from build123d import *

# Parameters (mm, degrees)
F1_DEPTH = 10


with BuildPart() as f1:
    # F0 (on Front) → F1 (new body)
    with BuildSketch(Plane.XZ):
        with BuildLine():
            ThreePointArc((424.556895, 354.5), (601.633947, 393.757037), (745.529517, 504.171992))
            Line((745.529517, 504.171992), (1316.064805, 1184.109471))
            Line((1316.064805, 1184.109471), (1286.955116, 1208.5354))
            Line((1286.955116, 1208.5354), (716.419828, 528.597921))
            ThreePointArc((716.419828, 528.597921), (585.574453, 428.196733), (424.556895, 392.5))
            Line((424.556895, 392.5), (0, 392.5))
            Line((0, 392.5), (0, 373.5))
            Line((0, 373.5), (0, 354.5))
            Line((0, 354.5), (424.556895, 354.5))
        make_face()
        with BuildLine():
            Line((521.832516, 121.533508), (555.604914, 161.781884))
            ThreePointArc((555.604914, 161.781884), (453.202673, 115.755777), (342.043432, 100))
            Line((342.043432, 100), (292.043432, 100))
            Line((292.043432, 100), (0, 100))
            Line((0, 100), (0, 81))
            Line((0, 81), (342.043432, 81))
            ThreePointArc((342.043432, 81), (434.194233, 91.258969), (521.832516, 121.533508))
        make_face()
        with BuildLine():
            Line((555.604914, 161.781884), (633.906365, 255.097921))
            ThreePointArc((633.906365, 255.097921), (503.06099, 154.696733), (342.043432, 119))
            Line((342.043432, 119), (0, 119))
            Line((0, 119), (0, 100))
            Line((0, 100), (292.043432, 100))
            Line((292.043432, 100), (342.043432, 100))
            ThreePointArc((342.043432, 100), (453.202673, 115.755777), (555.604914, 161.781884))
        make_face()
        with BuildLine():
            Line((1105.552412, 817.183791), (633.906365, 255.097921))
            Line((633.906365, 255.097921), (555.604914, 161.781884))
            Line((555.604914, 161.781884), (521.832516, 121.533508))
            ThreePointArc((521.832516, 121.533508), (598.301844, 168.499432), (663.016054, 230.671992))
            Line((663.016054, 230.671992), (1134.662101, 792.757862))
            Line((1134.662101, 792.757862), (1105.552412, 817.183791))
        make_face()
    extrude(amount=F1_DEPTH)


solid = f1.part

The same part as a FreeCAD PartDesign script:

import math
import FreeCAD as App
import Part
import Sketcher
Q = App.Units.Quantity

doc = App.newDocument("Part")
params = doc.addObject("Spreadsheet::Sheet", "Params")
for row, (alias, value) in enumerate([
    ("sketch1_height", "38 mm"),
    ("pad1_length", "10 mm"),
], start=1):
    params.set(f"A{row}", alias)
    params.set(f"B{row}", "=" + value)
    params.setAlias(f"B{row}", alias)

body = doc.addObject("PartDesign::Body", "Body")
body.AllowCompound = True

sketch1 = body.newObject("Sketcher::SketchObject", "Sketch")
sketch1.AttachmentSupport = (doc.getObject("XZ_Plane"), [""])
sketch1.MapMode = "FlatFace"
sketch1.addGeometry([
    Part.ArcOfCircle(Part.Circle(App.Vector(425, 773, 0), App.Vector(0, 0, 1), 419), math.radians(-90), math.radians(-40)),
    Part.LineSegment(App.Vector(746, 504, 0), App.Vector(1316, 1184, 0)),
    Part.LineSegment(App.Vector(1316, 1184, 0), App.Vector(1287, 1209, 0)),
    Part.LineSegment(App.Vector(1287, 1209, 0), App.Vector(716, 529, 0)),
    Part.ArcOfCircle(Part.Circle(App.Vector(425, 773, 0), App.Vector(0, 0, 1), 381), math.radians(-90), math.radians(-40)),
    Part.LineSegment(App.Vector(425, 392, 0), App.Vector(0, 392, 0)),
    Part.LineSegment(App.Vector(0, 392, 0), App.Vector(0, 354, 0)),
    Part.LineSegment(App.Vector(0, 354, 0), App.Vector(425, 354, 0)),
    Part.ArcOfCircle(Part.Circle(App.Vector(342, 500, 0), App.Vector(0, 0, 1), 381), math.radians(-90), math.radians(-40)),
    Part.LineSegment(App.Vector(342, 119, 0), App.Vector(0, 119, 0)),
    Part.LineSegment(App.Vector(0, 119, 0), App.Vector(0, 81, 0)),
    Part.LineSegment(App.Vector(0, 81, 0), App.Vector(342, 81, 0)),
    Part.ArcOfCircle(Part.Circle(App.Vector(342, 500, 0), App.Vector(0, 0, 1), 419), math.radians(-90), math.radians(-65)),
    Part.ArcOfCircle(Part.Circle(App.Vector(342, 500, 0), App.Vector(0, 0, 1), 419), math.radians(-65), math.radians(-40)),
    Part.LineSegment(App.Vector(663, 231, 0), App.Vector(1135, 793, 0)),
    Part.LineSegment(App.Vector(1135, 793, 0), App.Vector(1106, 817, 0)),
    Part.LineSegment(App.Vector(1106, 817, 0), App.Vector(634, 255, 0)),
], False)
sketch1.addConstraint([
    Sketcher.Constraint("Tangent", 0, 2, 1, 1),
    Sketcher.Constraint("Coincident", 1, 2, 2, 1),
    Sketcher.Constraint("Coincident", 2, 2, 3, 1),
    Sketcher.Constraint("Tangent", 3, 2, 4, 2),
    Sketcher.Constraint("Tangent", 4, 1, 5, 1),
    Sketcher.Constraint("Coincident", 5, 2, 6, 1),
    Sketcher.Constraint("Coincident", 6, 2, 7, 1),
    Sketcher.Constraint("Tangent", 7, 2, 0, 1),
    Sketcher.Constraint("Tangent", 8, 1, 9, 1),
    Sketcher.Constraint("Coincident", 9, 2, 10, 1),
    Sketcher.Constraint("Coincident", 10, 2, 11, 1),
    Sketcher.Constraint("Tangent", 11, 2, 12, 1),
    Sketcher.Constraint("Tangent", 12, 2, 13, 1),
    Sketcher.Constraint("Tangent", 13, 2, 14, 1),
    Sketcher.Constraint("Coincident", 14, 2, 15, 1),
    Sketcher.Constraint("Coincident", 15, 2, 16, 1),
    Sketcher.Constraint("Tangent", 16, 2, 8, 2),
    Sketcher.Constraint("Horizontal", 5),
    Sketcher.Constraint("Vertical", 6),
    Sketcher.Constraint("Horizontal", 7),
    Sketcher.Constraint("Horizontal", 9),
    Sketcher.Constraint("Vertical", 10),
    Sketcher.Constraint("Horizontal", 11),
    Sketcher.Constraint("Coincident", 4, 3, 0, 3),
    Sketcher.Constraint("Coincident", 13, 3, 8, 3),
    Sketcher.Constraint("Equal", 4, 8),
    Sketcher.Constraint("PointOnObject", 5, 2, -2),
    Sketcher.Constraint("PointOnObject", 9, 2, -2),
    Sketcher.Constraint("Perpendicular", 1, 2),
    Sketcher.Constraint("Perpendicular", 2, 3),
    Sketcher.Constraint("Parallel", 3, 14),
    Sketcher.Constraint("Perpendicular", 14, 15),
    Sketcher.Constraint("Perpendicular", 15, 16),
    Sketcher.Constraint("Vertical", 12, 3, 13, 3),
    Sketcher.Constraint("Equal", 6, 10),
    Sketcher.Constraint("DistanceY", 6, 2, 6, 1, Q("38 mm")),
    Sketcher.Constraint("Angle", 1, Q("50 deg")),
    Sketcher.Constraint("DistanceY", -1, 1, 8, 1, Q("119 mm")),
    Sketcher.Constraint("DistanceY", -1, 1, 4, 1, Q("392.5 mm")),
    Sketcher.Constraint("Radius", 12, Q("418.999981 mm")),
    Sketcher.Constraint("DistanceX", 9, 2, 9, 1, Q("342.043432 mm")),
    Sketcher.Constraint("DistanceY", -1, 1, 2, 2, Q("1208.5354 mm")),
    Sketcher.Constraint("DistanceX", -1, 1, 14, 2, Q("1134.662101 mm")),
    Sketcher.Constraint("DistanceX", 5, 2, 5, 1, Q("424.556895 mm")),
    Sketcher.Constraint("DistanceX", 7, 2, 12, 2, Q("97.275621 mm")),
])
sketch1.setExpression("Constraints[35]", "Params.sketch1_height")
pad1 = body.newObject("PartDesign::Pad", "Pad")
pad1.Profile = sketch1
pad1.setExpression("Length", "Params.pad1_length")

doc.recompute()
